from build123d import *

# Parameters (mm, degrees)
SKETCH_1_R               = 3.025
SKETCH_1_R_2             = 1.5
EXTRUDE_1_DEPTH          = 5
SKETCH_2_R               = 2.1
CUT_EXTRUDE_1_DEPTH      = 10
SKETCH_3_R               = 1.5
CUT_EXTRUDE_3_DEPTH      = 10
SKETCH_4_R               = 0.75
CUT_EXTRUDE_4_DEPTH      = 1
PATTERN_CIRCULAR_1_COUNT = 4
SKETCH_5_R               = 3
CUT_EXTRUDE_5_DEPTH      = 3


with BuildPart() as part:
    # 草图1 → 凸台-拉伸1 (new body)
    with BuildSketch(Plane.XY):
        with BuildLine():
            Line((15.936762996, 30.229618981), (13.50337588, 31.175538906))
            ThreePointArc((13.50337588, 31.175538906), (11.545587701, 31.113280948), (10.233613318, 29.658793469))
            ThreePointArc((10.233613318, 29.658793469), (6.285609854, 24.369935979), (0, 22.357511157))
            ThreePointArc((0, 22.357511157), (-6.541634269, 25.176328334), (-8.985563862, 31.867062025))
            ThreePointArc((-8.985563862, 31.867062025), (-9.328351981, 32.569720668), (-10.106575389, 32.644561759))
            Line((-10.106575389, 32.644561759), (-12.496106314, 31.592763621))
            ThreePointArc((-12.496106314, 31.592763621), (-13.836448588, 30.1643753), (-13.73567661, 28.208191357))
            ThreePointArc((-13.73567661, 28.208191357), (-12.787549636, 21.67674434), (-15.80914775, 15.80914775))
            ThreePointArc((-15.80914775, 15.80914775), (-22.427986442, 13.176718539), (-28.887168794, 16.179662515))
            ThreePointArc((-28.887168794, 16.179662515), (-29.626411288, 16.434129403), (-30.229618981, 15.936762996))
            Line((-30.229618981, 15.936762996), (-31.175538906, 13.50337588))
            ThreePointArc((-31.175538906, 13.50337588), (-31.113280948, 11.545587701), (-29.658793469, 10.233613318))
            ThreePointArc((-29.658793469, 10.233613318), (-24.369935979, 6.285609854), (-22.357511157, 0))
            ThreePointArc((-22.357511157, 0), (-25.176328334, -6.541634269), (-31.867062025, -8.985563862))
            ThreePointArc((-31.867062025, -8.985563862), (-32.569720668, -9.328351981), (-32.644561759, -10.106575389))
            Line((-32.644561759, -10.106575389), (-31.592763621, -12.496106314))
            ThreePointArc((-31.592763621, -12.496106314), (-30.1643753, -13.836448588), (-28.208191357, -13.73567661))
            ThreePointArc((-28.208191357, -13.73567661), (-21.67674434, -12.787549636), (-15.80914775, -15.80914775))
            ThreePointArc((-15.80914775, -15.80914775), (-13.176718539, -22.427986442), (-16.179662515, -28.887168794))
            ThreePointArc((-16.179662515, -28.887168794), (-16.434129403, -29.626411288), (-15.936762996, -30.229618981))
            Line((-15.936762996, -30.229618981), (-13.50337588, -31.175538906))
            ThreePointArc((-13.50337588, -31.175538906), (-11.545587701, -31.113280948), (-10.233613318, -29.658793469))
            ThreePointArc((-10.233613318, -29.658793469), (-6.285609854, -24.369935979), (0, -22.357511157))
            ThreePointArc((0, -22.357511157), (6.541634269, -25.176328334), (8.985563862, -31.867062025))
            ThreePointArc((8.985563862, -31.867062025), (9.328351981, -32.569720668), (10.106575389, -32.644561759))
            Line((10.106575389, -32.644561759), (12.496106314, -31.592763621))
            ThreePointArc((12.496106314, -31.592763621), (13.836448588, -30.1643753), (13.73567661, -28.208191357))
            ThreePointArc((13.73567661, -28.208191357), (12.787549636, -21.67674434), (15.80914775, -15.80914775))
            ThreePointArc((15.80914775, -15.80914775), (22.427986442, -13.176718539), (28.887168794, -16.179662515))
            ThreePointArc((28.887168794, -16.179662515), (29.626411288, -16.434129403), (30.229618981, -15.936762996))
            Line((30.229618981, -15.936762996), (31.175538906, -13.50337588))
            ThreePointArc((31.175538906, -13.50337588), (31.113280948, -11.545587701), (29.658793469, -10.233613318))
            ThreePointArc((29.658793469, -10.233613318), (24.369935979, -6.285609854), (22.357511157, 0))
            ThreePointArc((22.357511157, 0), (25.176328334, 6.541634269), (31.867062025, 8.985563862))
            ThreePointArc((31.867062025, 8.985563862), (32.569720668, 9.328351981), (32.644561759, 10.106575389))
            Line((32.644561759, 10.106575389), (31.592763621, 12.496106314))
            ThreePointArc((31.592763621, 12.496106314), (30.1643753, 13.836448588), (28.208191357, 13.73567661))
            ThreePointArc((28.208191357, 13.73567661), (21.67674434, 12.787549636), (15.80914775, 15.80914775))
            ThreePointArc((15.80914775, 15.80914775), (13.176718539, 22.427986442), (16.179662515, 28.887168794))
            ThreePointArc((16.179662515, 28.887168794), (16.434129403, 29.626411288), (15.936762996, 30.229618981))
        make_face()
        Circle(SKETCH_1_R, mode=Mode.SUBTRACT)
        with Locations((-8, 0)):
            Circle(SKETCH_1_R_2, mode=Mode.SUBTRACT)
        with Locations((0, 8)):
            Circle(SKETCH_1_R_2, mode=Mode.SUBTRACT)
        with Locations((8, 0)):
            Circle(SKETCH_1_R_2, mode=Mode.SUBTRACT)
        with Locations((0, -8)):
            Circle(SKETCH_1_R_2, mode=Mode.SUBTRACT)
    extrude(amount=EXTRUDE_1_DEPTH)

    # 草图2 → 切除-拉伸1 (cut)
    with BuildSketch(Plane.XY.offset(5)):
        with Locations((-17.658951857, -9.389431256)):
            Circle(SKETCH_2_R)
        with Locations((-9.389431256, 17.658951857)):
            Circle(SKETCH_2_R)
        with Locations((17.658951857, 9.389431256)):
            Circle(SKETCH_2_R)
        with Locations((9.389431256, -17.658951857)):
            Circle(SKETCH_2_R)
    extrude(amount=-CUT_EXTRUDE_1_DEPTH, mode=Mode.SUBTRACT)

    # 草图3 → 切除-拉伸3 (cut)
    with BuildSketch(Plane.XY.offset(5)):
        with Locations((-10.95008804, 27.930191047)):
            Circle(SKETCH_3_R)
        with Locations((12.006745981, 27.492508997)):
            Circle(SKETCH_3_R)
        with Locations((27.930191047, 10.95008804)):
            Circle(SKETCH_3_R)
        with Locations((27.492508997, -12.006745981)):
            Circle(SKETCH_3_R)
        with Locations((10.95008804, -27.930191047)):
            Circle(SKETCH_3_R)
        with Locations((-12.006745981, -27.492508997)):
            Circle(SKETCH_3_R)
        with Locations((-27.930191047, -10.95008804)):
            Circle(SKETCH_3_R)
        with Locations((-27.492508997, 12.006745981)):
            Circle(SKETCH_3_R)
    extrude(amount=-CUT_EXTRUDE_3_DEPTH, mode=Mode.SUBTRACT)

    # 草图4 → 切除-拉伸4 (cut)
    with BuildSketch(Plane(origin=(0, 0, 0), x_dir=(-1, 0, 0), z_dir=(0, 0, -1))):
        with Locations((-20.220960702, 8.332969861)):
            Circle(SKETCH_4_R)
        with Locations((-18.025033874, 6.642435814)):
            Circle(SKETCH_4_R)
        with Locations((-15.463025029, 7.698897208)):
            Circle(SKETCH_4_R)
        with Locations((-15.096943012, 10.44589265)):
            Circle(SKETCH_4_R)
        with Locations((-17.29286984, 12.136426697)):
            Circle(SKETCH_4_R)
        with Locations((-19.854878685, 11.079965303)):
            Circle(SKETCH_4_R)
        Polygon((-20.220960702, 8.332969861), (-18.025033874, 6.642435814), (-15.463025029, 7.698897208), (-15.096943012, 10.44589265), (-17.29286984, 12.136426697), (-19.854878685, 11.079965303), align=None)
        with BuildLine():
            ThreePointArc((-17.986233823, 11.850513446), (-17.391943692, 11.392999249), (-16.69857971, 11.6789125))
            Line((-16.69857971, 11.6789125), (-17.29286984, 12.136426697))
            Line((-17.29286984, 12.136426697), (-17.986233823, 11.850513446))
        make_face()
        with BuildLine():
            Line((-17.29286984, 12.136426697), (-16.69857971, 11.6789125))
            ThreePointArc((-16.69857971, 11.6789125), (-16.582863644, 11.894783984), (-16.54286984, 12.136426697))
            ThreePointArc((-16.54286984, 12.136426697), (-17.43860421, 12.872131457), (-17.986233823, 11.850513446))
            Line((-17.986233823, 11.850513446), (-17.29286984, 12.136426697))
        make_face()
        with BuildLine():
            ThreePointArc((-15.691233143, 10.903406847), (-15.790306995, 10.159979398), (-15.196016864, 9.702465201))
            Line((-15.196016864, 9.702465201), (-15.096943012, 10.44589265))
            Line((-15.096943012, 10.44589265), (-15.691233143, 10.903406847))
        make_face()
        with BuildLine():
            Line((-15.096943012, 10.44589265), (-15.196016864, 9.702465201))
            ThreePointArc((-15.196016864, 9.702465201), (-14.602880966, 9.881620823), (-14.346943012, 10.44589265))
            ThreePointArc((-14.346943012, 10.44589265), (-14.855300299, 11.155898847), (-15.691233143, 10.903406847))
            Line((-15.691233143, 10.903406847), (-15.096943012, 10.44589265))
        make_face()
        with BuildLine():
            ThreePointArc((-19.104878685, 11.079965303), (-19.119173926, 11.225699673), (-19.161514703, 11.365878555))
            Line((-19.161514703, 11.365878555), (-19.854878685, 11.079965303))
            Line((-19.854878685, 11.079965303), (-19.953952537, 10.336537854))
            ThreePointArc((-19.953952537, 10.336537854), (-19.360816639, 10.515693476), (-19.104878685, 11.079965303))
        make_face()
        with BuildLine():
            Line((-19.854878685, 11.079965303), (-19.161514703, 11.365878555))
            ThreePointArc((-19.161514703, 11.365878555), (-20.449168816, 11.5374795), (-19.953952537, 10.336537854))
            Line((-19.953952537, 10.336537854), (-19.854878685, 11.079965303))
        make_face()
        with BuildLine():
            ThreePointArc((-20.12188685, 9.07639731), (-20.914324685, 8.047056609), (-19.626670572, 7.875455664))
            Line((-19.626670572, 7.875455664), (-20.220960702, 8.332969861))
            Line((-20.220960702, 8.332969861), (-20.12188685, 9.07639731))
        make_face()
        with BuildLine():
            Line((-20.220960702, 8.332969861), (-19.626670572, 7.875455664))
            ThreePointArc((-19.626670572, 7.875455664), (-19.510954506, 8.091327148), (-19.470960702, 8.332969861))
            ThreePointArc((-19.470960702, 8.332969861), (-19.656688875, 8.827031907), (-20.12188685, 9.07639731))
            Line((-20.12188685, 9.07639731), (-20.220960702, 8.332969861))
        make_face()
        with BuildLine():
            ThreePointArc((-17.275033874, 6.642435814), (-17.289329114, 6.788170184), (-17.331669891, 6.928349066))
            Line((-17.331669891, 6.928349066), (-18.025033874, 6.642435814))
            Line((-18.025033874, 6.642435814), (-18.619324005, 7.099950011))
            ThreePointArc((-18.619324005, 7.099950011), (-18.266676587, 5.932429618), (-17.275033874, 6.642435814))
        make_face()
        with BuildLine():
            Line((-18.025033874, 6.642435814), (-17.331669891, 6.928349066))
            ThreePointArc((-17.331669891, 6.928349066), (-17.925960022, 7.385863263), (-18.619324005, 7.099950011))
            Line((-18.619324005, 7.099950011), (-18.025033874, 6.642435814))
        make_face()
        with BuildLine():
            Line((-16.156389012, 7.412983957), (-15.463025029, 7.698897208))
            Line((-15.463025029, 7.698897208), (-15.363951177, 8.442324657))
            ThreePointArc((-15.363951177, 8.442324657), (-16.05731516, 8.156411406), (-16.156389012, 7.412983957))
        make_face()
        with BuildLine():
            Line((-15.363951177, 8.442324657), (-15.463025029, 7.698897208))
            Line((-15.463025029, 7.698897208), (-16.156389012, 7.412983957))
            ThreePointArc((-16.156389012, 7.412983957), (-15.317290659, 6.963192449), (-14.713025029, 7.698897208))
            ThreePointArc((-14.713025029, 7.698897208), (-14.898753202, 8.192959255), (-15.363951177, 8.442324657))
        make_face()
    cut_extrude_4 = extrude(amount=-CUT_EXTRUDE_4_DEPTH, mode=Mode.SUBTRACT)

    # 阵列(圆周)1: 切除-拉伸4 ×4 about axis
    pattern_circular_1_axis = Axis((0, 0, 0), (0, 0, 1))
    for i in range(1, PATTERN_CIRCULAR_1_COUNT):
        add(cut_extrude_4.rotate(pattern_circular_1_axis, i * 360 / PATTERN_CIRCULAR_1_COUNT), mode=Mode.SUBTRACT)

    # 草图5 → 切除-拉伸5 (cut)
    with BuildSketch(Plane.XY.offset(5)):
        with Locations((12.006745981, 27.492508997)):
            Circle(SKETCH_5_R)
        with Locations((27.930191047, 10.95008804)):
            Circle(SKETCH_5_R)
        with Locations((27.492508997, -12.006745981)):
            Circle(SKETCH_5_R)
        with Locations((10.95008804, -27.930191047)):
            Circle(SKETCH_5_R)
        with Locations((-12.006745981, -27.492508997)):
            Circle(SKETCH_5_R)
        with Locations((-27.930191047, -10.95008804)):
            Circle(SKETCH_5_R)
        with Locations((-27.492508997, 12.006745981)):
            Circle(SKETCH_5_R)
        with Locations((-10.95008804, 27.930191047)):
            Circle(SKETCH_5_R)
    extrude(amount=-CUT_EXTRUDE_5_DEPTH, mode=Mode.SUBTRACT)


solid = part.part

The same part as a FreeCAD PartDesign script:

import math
import FreeCAD as App
import Part
import Sketcher

V = App.Vector

doc = App.newDocument("Part")
params = doc.addObject("Spreadsheet::Sheet", "Params")
for row, (alias, value) in enumerate([
    ("sketch1_diameter", "3 mm"),
    ("sketch1_diameter2", "3 mm"),
    ("sketch1_diameter3", "3 mm"),
    ("sketch1_diameter4", "3 mm"),
    ("sketch1_radius", "9 mm"),
    ("pad1_length", "5 mm"),
    ("sketch2_diameter", "4.2 mm"),
    ("pocket1_length", "10 mm"),
    ("sketch3_diameter", "3 mm"),
    ("pocket2_length", "10 mm"),
    ("sketch4_radius", "0.75 mm"),
    ("pocket3_length", "1 mm"),
    ("sketch5_diameter", "6 mm"),
    ("pocket4_length", "3 mm"),
], start=1):
    params.set(f"A{row}", alias)
    params.set(f"B{row}", "=" + value)
    params.setAlias(f"B{row}", alias)

body = doc.addObject("PartDesign::Body", "Body")

# Sketch on XY plane
sketch1 = body.newObject("Sketcher::SketchObject", "Sketch")
sketch1.AttachmentSupport = (doc.getObject("XY_Plane"), [""])
sketch1.MapMode = "FlatFace"
sketch1.addGeometry([
    Part.LineSegment(V(15.936763, 30.229619, 0), V(13.503376, 31.175539, 0)),  # 0
    Part.ArcOfCircle(Part.Circle(V(12.597591, 28.845399, 0), V(0, 0, 1), 2.5), math.radians(68.757621), math.radians(161.012741)),  # 1
    Part.ArcOfCircle(Part.Circle(V(0, 33.179964, 0), V(0, 0, 1), 10.822453), math.radians(-90), math.radians(-18.987259)),  # 2
    Part.ArcOfCircle(Part.Circle(V(0, 31.357511, 0), V(0, 0, 1), 9), math.radians(176.754363), math.radians(270)),  # 3
    Part.ArcOfCircle(Part.Circle(V(-9.784281, 31.912355, 0), V(0, 0, 1), 0.8), math.radians(-3.245637), math.radians(113.757621)),  # 4
    Part.LineSegment(V(-10.106575, 32.644562, 0), V(-12.496106, 31.592764, 0)),  # 5
    Part.ArcOfCircle(Part.Circle(V(-11.488935, 29.304619, 0), V(0, 0, 1), 2.5), math.radians(113.75762), math.radians(206.012741)),  # 6
    Part.ArcOfCircle(Part.Circle(V(-23.461777, 23.461777, 0), V(0, 0, 1), 10.822453), math.radians(-45), math.radians(26.012741)),  # 7
    Part.ArcOfCircle(Part.Circle(V(-22.173109, 22.173109, 0), V(0, 0, 1), 9), math.radians(-138.245637), math.radians(-45)),  # 8
    Part.ArcOfCircle(Part.Circle(V(-29.483974, 15.646912, 0), V(0, 0, 1), 0.8), math.radians(41.754363), math.radians(158.757621)),  # 9
    Part.LineSegment(V(-30.229619, 15.936763, 0), V(-31.175539, 13.503376, 0)),  # 10
    Part.ArcOfCircle(Part.Circle(V(-28.845399, 12.597591, 0), V(0, 0, 1), 2.5), math.radians(158.757621), math.radians(251.012741)),  # 11
    Part.ArcOfCircle(Part.Circle(V(-33.179964, 0, 0), V(0, 0, 1), 10.822453), math.radians(0), math.radians(71.012741)),  # 12
    Part.ArcOfCircle(Part.Circle(V(-31.357511, 0, 0), V(0, 0, 1), 9), math.radians(-93.245637), math.radians(0)),  # 13
    Part.ArcOfCircle(Part.Circle(V(-31.912355, -9.784281, 0), V(0, 0, 1), 0.8), math.radians(86.754363), math.radians(203.757621)),  # 14
    Part.LineSegment(V(-32.644562, -10.106575, 0), V(-31.592764, -12.496106, 0)),  # 15
    Part.ArcOfCircle(Part.Circle(V(-29.304619, -11.488935, 0), V(0, 0, 1), 2.5), math.radians(-156.24238), math.radians(-63.987259)),  # 16
    Part.ArcOfCircle(Part.Circle(V(-23.461777, -23.461777, 0), V(0, 0, 1), 10.822453), math.radians(45), math.radians(116.012741)),  # 17
    Part.ArcOfCircle(Part.Circle(V(-22.173109, -22.173109, 0), V(0, 0, 1), 9), math.radians(-48.245637), math.radians(45)),  # 18
    Part.ArcOfCircle(Part.Circle(V(-15.646912, -29.483974, 0), V(0, 0, 1), 0.8), math.radians(131.754363), math.radians(248.757621)),  # 19
    Part.LineSegment(V(-15.936763, -30.229619, 0), V(-13.503376, -31.175539, 0)),  # 20
    Part.ArcOfCircle(Part.Circle(V(-12.597591, -28.845399, 0), V(0, 0, 1), 2.5), math.radians(-111.242379), math.radians(-18.987259)),  # 21
    Part.ArcOfCircle(Part.Circle(V(0, -33.179964, 0), V(0, 0, 1), 10.822453), math.radians(90), math.radians(161.012741)),  # 22
    Part.ArcOfCircle(Part.Circle(V(0, -31.357511, 0), V(0, 0, 1), 9), math.radians(-3.245637), math.radians(90)),  # 23
    Part.ArcOfCircle(Part.Circle(V(9.784281, -31.912355, 0), V(0, 0, 1), 0.8), math.radians(176.754363), math.radians(293.757621)),  # 24
    Part.LineSegment(V(10.106575, -32.644562, 0), V(12.496106, -31.592764, 0)),  # 25
    Part.ArcOfCircle(Part.Circle(V(11.488935, -29.304619, 0), V(0, 0, 1), 2.5), math.radians(-66.24238), math.radians(26.012741)),  # 26
    Part.ArcOfCircle(Part.Circle(V(23.461777, -23.461777, 0), V(0, 0, 1), 10.822453), math.radians(135), math.radians(206.012741)),  # 27
    Part.ArcOfCircle(Part.Circle(V(22.173109, -22.173109, 0), V(0, 0, 1), 9), math.radians(41.754363), math.radians(135)),  # 28
    Part.ArcOfCircle(Part.Circle(V(29.483974, -15.646912, 0), V(0, 0, 1), 0.8), math.radians(-138.245637), math.radians(-21.242379)),  # 29
    Part.LineSegment(V(30.229619, -15.936763, 0), V(31.175539, -13.503376, 0)),  # 30
    Part.ArcOfCircle(Part.Circle(V(28.845399, -12.597591, 0), V(0, 0, 1), 2.5), math.radians(-21.242379), math.radians(71.012741)),  # 31
    Part.ArcOfCircle(Part.Circle(V(33.179964, 0, 0), V(0, 0, 1), 10.822453), math.radians(180), math.radians(251.012741)),  # 32
    Part.ArcOfCircle(Part.Circle(V(31.357511, 0, 0), V(0, 0, 1), 9), math.radians(86.754363), math.radians(180)),  # 33
    Part.ArcOfCircle(Part.Circle(V(31.912355, 9.784281, 0), V(0, 0, 1), 0.8), math.radians(-93.245637), math.radians(23.757621)),  # 34
    Part.LineSegment(V(32.644562, 10.106575, 0), V(31.592764, 12.496106, 0)),  # 35
    Part.ArcOfCircle(Part.Circle(V(29.304619, 11.488935, 0), V(0, 0, 1), 2.5), math.radians(23.75762), math.radians(116.012741)),  # 36
    Part.ArcOfCircle(Part.Circle(V(23.461777, 23.461777, 0), V(0, 0, 1), 10.822453), math.radians(-135), math.radians(-63.987259)),  # 37
    Part.ArcOfCircle(Part.Circle(V(22.173109, 22.173109, 0), V(0, 0, 1), 9), math.radians(131.754363), math.radians(225)),  # 38
    Part.ArcOfCircle(Part.Circle(V(15.646912, 29.483974, 0), V(0, 0, 1), 0.8), math.radians(-48.245637), math.radians(68.757621)),  # 39
    Part.Circle(V(0, -8, 0), V(0, 0, 1), 1.5),  # 40
    Part.Circle(V(-8, 0, 0), V(0, 0, 1), 1.5),  # 41
    Part.Circle(V(0, 0, 0), V(0, 0, 1), 3.025),  # 42
    Part.Circle(V(8, 0, 0), V(0, 0, 1), 1.5),  # 43
    Part.Circle(V(0, 8, 0), V(0, 0, 1), 1.5),  # 44
], False)
sketch1.addConstraint([
    Sketcher.Constraint("Coincident", 0, 2, 1, 1),
    Sketcher.Constraint("Coincident", 1, 2, 2, 2),
    Sketcher.Constraint("Coincident", 2, 1, 3, 2),
    Sketcher.Constraint("Coincident", 3, 1, 4, 1),
    Sketcher.Constraint("Coincident", 4, 2, 5, 1),
    Sketcher.Constraint("Coincident", 5, 2, 6, 1),
    Sketcher.Constraint("Coincident", 6, 2, 7, 2),
    Sketcher.Constraint("Coincident", 7, 1, 8, 2),
    Sketcher.Constraint("Coincident", 8, 1, 9, 1),
    Sketcher.Constraint("Coincident", 9, 2, 10, 1),
    Sketcher.Constraint("Coincident", 10, 2, 11, 1),
    Sketcher.Constraint("Coincident", 11, 2, 12, 2),
    Sketcher.Constraint("Coincident", 12, 1, 13, 2),
    Sketcher.Constraint("Coincident", 13, 1, 14, 1),
    Sketcher.Constraint("Coincident", 14, 2, 15, 1),
    Sketcher.Constraint("Coincident", 15, 2, 16, 1),
    Sketcher.Constraint("Coincident", 16, 2, 17, 2),
    Sketcher.Constraint("Coincident", 17, 1, 18, 2),
    Sketcher.Constraint("Coincident", 18, 1, 19, 1),
    Sketcher.Constraint("Coincident", 19, 2, 20, 1),
    Sketcher.Constraint("Coincident", 20, 2, 21, 1),
    Sketcher.Constraint("Coincident", 21, 2, 22, 2),
    Sketcher.Constraint("Coincident", 22, 1, 23, 2),
    Sketcher.Constraint("Coincident", 23, 1, 24, 1),
    Sketcher.Constraint("Coincident", 24, 2, 25, 1),
    Sketcher.Constraint("Coincident", 25, 2, 26, 1),
    Sketcher.Constraint("Coincident", 26, 2, 27, 2),
    Sketcher.Constraint("Coincident", 27, 1, 28, 2),
    Sketcher.Constraint("Coincident", 28, 1, 29, 1),
    Sketcher.Constraint("Coincident", 29, 2, 30, 1),
    Sketcher.Constraint("Coincident", 30, 2, 31, 1),
    Sketcher.Constraint("Coincident", 31, 2, 32, 2),
    Sketcher.Constraint("Coincident", 32, 1, 33, 2),
    Sketcher.Constraint("Coincident", 33, 1, 34, 1),
    Sketcher.Constraint("Coincident", 34, 2, 35, 1),
    Sketcher.Constraint("Coincident", 35, 2, 36, 1),
    Sketcher.Constraint("Coincident", 36, 2, 37, 2),
    Sketcher.Constraint("Coincident", 37, 1, 38, 2),
    Sketcher.Constraint("Coincident", 38, 1, 39, 1),
    Sketcher.Constraint("Coincident", 39, 2, 0, 1),
    Sketcher.Constraint("Coincident", 42, 3, -1, 1),
    Sketcher.Constraint("PointOnObject", 2, 3, -2),
    Sketcher.Constraint("PointOnObject", 3, 3, -2),
    Sketcher.Constraint("PointOnObject", 12, 3, -1),
    Sketcher.Constraint("PointOnObject", 13, 3, -1),
    Sketcher.Constraint("PointOnObject", 22, 3, -2),
    Sketcher.Constraint("PointOnObject", 23, 3, -2),
    Sketcher.Constraint("PointOnObject", 32, 3, -1),
    Sketcher.Constraint("PointOnObject", 33, 3, -1),
    Sketcher.Constraint("PointOnObject", 40, 3, -2),
    Sketcher.Constraint("PointOnObject", 41, 3, -1),
    Sketcher.Constraint("PointOnObject", 43, 3, -1),
    Sketcher.Constraint("PointOnObject", 44, 3, -2),
    Sketcher.Constraint("PointOnObject", 2, 1, -2),
    Sketcher.Constraint("PointOnObject", 12, 1, -1),
    Sketcher.Constraint("PointOnObject", 22, 1, -2),
    Sketcher.Constraint("PointOnObject", 32, 1, -1),
    Sketcher.Constraint("Diameter", 40, 3.0),
    Sketcher.Constraint("Diameter", 41, 3.0),
    Sketcher.Constraint("Diameter", 43, 3.0),
    Sketcher.Constraint("Diameter", 44, 3.0),
    Sketcher.Constraint("Radius", 3, 9.0),
    Sketcher.Constraint("Radius", 8, 9.0),
    Sketcher.Constraint("Radius", 13, 9.0),
    Sketcher.Constraint("Radius", 18, 9.0),
    Sketcher.Constraint("Radius", 23, 9.0),
    Sketcher.Constraint("Radius", 28, 9.0),
    Sketcher.Constraint("Radius", 33, 9.0),
    Sketcher.Constraint("Radius", 38, 9.0),
    Sketcher.Constraint("Radius", 1, 2.5),
    Sketcher.Constraint("Radius", 4, 0.8),
    Sketcher.Constraint("Radius", 6, 2.5),
    Sketcher.Constraint("Radius", 9, 0.8),
    Sketcher.Constraint("Radius", 11, 2.5),
    Sketcher.Constraint("Radius", 14, 0.8),
    Sketcher.Constraint("Radius", 16, 2.5),
    Sketcher.Constraint("Radius", 19, 0.8),
    Sketcher.Constraint("Radius", 21, 2.5),
    Sketcher.Constraint("Radius", 24, 0.8),
    Sketcher.Constraint("Radius", 26, 2.5),
    Sketcher.Constraint("Radius", 29, 0.8),
    Sketcher.Constraint("Radius", 31, 2.5),
    Sketcher.Constraint("Radius", 34, 0.8),
    Sketcher.Constraint("Radius", 36, 2.5),
    Sketcher.Constraint("Radius", 39, 0.8),
    Sketcher.Constraint("Diameter", 42, 6.05),
    Sketcher.Constraint("DistanceY", 40, 3, -1, 1, 8.0),
    Sketcher.Constraint("DistanceX", 41, 3, -1, 1, 8.0),
    Sketcher.Constraint("DistanceX", -1, 1, 43, 3, 8.0),
    Sketcher.Constraint("DistanceY", -1, 1, 44, 3, 8.0),
    Sketcher.Constraint("Radius", 2, 10.822453),
    Sketcher.Constraint("Radius", 7, 10.822453),
    Sketcher.Constraint("Radius", 12, 10.822453),
    Sketcher.Constraint("Radius", 17, 10.822453),
    Sketcher.Constraint("Radius", 22, 10.822453),
    Sketcher.Constraint("Radius", 27, 10.822453),
    Sketcher.Constraint("Radius", 32, 10.822453),
    Sketcher.Constraint("Radius", 37, 10.822453),
    Sketcher.Constraint("DistanceY", -1, 1, 1, 3, 28.845399),
    Sketcher.Constraint("DistanceX", 11, 3, -1, 1, 28.845399),
    Sketcher.Constraint("DistanceY", 21, 3, -1, 1, 28.845399),
    Sketcher.Constraint("DistanceX", -1, 1, 31, 3, 28.845399),
    Sketcher.Constraint("DistanceX", -1, 1, 1, 3, 12.597591),
    Sketcher.Constraint("DistanceX", 4, 3, -1, 1, 9.784281),
    Sketcher.Constraint("DistanceY", -1, 1, 6, 3, 29.304619),
    Sketcher.Constraint("DistanceX", 8, 3, -1, 1, 22.173109),
    Sketcher.Constraint("DistanceY", -1, 1, 8, 3, 22.173109),
    Sketcher.Constraint("DistanceY", -1, 1, 9, 3, 15.646912),
    Sketcher.Constraint("DistanceY", -1, 1, 11, 3, 12.597591),
    Sketcher.Constraint("DistanceY", 14, 3, -1, 1, 9.784281),
    Sketcher.Constraint("DistanceX", 16, 3, -1, 1, 29.304619),
    Sketcher.Constraint("DistanceX", 18, 3, -1, 1, 22.173109),
    Sketcher.Constraint("DistanceY", 18, 3, -1, 1, 22.173109),
    Sketcher.Constraint("DistanceX", 19, 3, -1, 1, 15.646912),
    Sketcher.Constraint("DistanceX", 21, 3, -1, 1, 12.597591),
    Sketcher.Constraint("DistanceX", -1, 1, 24, 3, 9.784281),
    Sketcher.Constraint("DistanceY", 26, 3, -1, 1, 29.304619),
    Sketcher.Constraint("DistanceX", -1, 1, 28, 3, 22.173109),
    Sketcher.Constraint("DistanceY", 28, 3, -1, 1, 22.173109),
    Sketcher.Constraint("DistanceY", 29, 3, -1, 1, 15.646912),
    Sketcher.Constraint("DistanceY", 31, 3, -1, 1, 12.597591),
    Sketcher.Constraint("DistanceY", -1, 1, 34, 3, 9.784281),
    Sketcher.Constraint("DistanceX", -1, 1, 36, 3, 29.304619),
    Sketcher.Constraint("DistanceX", -1, 1, 38, 3, 22.173109),
    Sketcher.Constraint("DistanceY", -1, 1, 38, 3, 22.173109),
    Sketcher.Constraint("DistanceX", -1, 1, 39, 3, 15.646912),
    Sketcher.Constraint("DistanceY", -1, 1, 0, 2, 31.175539),
    Sketcher.Constraint("DistanceY", -1, 1, 4, 2, 32.644562),
    Sketcher.Constraint("DistanceY", -1, 1, 6, 2, 28.208191),
    Sketcher.Constraint("DistanceX", 8, 1, -1, 1, 28.887169),
    Sketcher.Constraint("DistanceX", 9, 2, -1, 1, 30.229619),
    Sketcher.Constraint("DistanceX", 10, 2, -1, 1, 31.175539),
    Sketcher.Constraint("DistanceX", 14, 2, -1, 1, 32.644562),
    Sketcher.Constraint("DistanceX", 16, 2, -1, 1, 28.208191),
    Sketcher.Constraint("DistanceY", 18, 1, -1, 1, 28.887169),
    Sketcher.Constraint("DistanceY", 19, 2, -1, 1, 30.229619),
    Sketcher.Constraint("DistanceY", 20, 2, -1, 1, 31.175539),
    Sketcher.Constraint("DistanceY", 24, 2, -1, 1, 32.644562),
    Sketcher.Constraint("DistanceY", 26, 2, -1, 1, 28.208191),
    Sketcher.Constraint("DistanceX", -1, 1, 28, 1, 28.887169),
    Sketcher.Constraint("DistanceX", -1, 1, 29, 2, 30.229619),
    Sketcher.Constraint("DistanceX", -1, 1, 30, 2, 31.175539),
    Sketcher.Constraint("DistanceX", -1, 1, 34, 2, 32.644562),
    Sketcher.Constraint("DistanceX", -1, 1, 36, 2, 28.208191),
    Sketcher.Constraint("DistanceY", -1, 1, 38, 1, 28.887169),
    Sketcher.Constraint("DistanceY", -1, 1, 39, 2, 30.229619),
    Sketcher.Constraint("Distance", 5, 2.610773),
    Sketcher.Constraint("Distance", 15, 2.610773),
    Sketcher.Constraint("Distance", 25, 2.610773),
    Sketcher.Constraint("Distance", 35, 2.610773),
    Sketcher.Constraint("DistanceX", 6, 3, -1, 1, 11.488935),
    Sketcher.Constraint("DistanceY", 16, 3, -1, 1, 11.488935),
    Sketcher.Constraint("DistanceX", -1, 1, 26, 3, 11.488935),
    Sketcher.Constraint("DistanceY", -1, 1, 36, 3, 11.488935),
    Sketcher.Constraint("DistanceX", -1, 1, 1, 2, 10.233613),
    Sketcher.Constraint("DistanceX", 3, 1, -1, 1, 8.985564),
    Sketcher.Constraint("DistanceX", 7, 1, -1, 1, 15.809148),
    Sketcher.Constraint("DistanceX", 11, 2, -1, 1, 29.658793),
    Sketcher.Constraint("DistanceX", 13, 1, -1, 1, 31.867062),
    Sketcher.Constraint("DistanceX", 17, 1, -1, 1, 15.809148),
    Sketcher.Constraint("DistanceX", 21, 2, -1, 1, 10.233613),
    Sketcher.Constraint("DistanceX", -1, 1, 23, 1, 8.985564),
    Sketcher.Constraint("DistanceX", -1, 1, 27, 1, 15.809148),
    Sketcher.Constraint("DistanceX", -1, 1, 31, 2, 29.658793),
    Sketcher.Constraint("DistanceX", -1, 1, 33, 1, 31.867062),
    Sketcher.Constraint("DistanceX", -1, 1, 37, 1, 15.809148),
])
sketch1.setExpression("Constraints[57]", "Params.sketch1_diameter")
sketch1.setExpression("Constraints[58]", "Params.sketch1_diameter2")
sketch1.setExpression("Constraints[59]", "Params.sketch1_diameter3")
sketch1.setExpression("Constraints[60]", "Params.sketch1_diameter4")
sketch1.setExpression("Constraints[61]", "Params.sketch1_radius")
pad1 = body.newObject("PartDesign::Pad", "Pad")
pad1.Profile = sketch1
pad1.setExpression("Length", "Params.pad1_length")

# Sketch on XY plane
sketch2 = body.newObject("Sketcher::SketchObject", "Sketch001")
sketch2.AttachmentSupport = (doc.getObject("XY_Plane"), [""])
sketch2.MapMode = "FlatFace"
sketch2.AttachmentOffset = App.Placement(V(0, 0, 5), App.Rotation())
sketch2.addGeometry([
    Part.Circle(V(-17.7, -9.4, 0), V(0, 0, 1), 2.1),
    Part.Circle(V(-9.4, 17.7, 0), V(0, 0, 1), 2.1),
    Part.Circle(V(17.7, 9.4, 0), V(0, 0, 1), 2.1),
    Part.Circle(V(9.4, -17.7, 0), V(0, 0, 1), 2.1),
], False)
sketch2.addConstraint([
    Sketcher.Constraint("Equal", 0, 1),
    Sketcher.Constraint("Equal", 1, 2),
    Sketcher.Constraint("Equal", 2, 3),
    Sketcher.Constraint("Symmetric", 0, 3, 2, 3, -1, 1),
    Sketcher.Constraint("Symmetric", 1, 3, 3, 3, -1, 1),
    Sketcher.Constraint("Diameter", 0, 4.2),
    Sketcher.Constraint("DistanceX", 0, 3, -1, 1, 17.658952),
    Sketcher.Constraint("DistanceY", 0, 3, -1, 1, 9.389431),
    Sketcher.Constraint("DistanceX", 1, 3, -1, 1, 9.389431),
    Sketcher.Constraint("DistanceY", -1, 1, 1, 3, 17.658952),
])
sketch2.setExpression("Constraints[5]", "Params.sketch2_diameter")
pocket1 = body.newObject("PartDesign::Pocket", "Pocket")
pocket1.Profile = sketch2
pocket1.setExpression("Length", "Params.pocket1_length")

# Sketch on XY plane
sketch3 = body.newObject("Sketcher::SketchObject", "Sketch002")
sketch3.AttachmentSupport = (doc.getObject("XY_Plane"), [""])
sketch3.MapMode = "FlatFace"
sketch3.AttachmentOffset = App.Placement(V(0, 0, 5), App.Rotation())
sketch3.addGeometry([
    Part.Circle(V(-11, 27.9, 0), V(0, 0, 1), 1.5),  # 0
    Part.Circle(V(12, 27.5, 0), V(0, 0, 1), 1.5),  # 1
    Part.Circle(V(27.9, 11, 0), V(0, 0, 1), 1.5),  # 2
    Part.Circle(V(27.5, -12, 0), V(0, 0, 1), 1.5),  # 3
    Part.Circle(V(11, -27.9, 0), V(0, 0, 1), 1.5),  # 4
    Part.Circle(V(-12, -27.5, 0), V(0, 0, 1), 1.5),  # 5
    Part.Circle(V(-27.9, -11, 0), V(0, 0, 1), 1.5),  # 6
    Part.Circle(V(-27.5, 12, 0), V(0, 0, 1), 1.5),  # 7
], False)
sketch3.addConstraint([
    Sketcher.Constraint("Equal", 0, 1),
    Sketcher.Constraint("Equal", 1, 2),
    Sketcher.Constraint("Equal", 2, 3),
    Sketcher.Constraint("Equal", 3, 4),
    Sketcher.Constraint("Equal", 4, 5),
    Sketcher.Constraint("Equal", 5, 6),
    Sketcher.Constraint("Equal", 6, 7),
    Sketcher.Constraint("Symmetric", 0, 3, 4, 3, -1, 1),
    Sketcher.Constraint("Symmetric", 1, 3, 5, 3, -1, 1),
    Sketcher.Constraint("Symmetric", 2, 3, 6, 3, -1, 1),
    Sketcher.Constraint("Symmetric", 3, 3, 7, 3, -1, 1),
    Sketcher.Constraint("Diameter", 0, 3.0),
    Sketcher.Constraint("DistanceY", 4, 3, 1, 3, 55.4227),
    Sketcher.Constraint("DistanceX", 6, 3, 3, 3, 55.4227),
    Sketcher.Constraint("DistanceX", 0, 3, -1, 1, 10.950088),
    Sketcher.Constraint("DistanceY", -1, 1, 0, 3, 27.930191),
    Sketcher.Constraint("DistanceX", -1, 1, 2, 3, 27.930191),
    Sketcher.Constraint("DistanceY", -1, 1, 2, 3, 10.950088),
    Sketcher.Constraint("DistanceX", 5, 3, 1, 3, 24.013492),
    Sketcher.Constraint("DistanceY", 3, 3, -1, 1, 12.006746),
])
sketch3.setExpression("Constraints[11]", "Params.sketch3_diameter")
pocket2 = body.newObject("PartDesign::Pocket", "Pocket001")
pocket2.Profile = sketch3
pocket2.setExpression("Length", "Params.pocket2_length")

# Sketch on XY plane
sketch4 = body.newObject("Sketcher::SketchObject", "Sketch003")
sketch4.AttachmentSupport = (doc.getObject("XY_Plane"), [""])
sketch4.MapMode = "FlatFace"
sketch4.addGeometry([
    Part.LineSegment(V(17.3, 6.9, 0), V(16.2, 7.4, 0)),  # 0
    Part.ArcOfCircle(Part.Circle(V(15.5, 7.7, 0), V(0, 0, 1), 0.8), math.radians(98), math.radians(338)),  # 1
    Part.LineSegment(V(15.4, 8.4, 0), V(15.2, 9.7, 0)),  # 2
    Part.ArcOfCircle(Part.Circle(V(15.1, 10.4, 0), V(0, 0, 1), 0.8), math.radians(38), math.radians(278)),  # 3
    Part.LineSegment(V(15.7, 10.9, 0), V(16.7, 11.7, 0)),  # 4
    Part.ArcOfCircle(Part.Circle(V(17.3, 12.1, 0), V(0, 0, 1), 0.8), math.radians(-22), math.radians(218)),  # 5
    Part.LineSegment(V(18, 11.9, 0), V(19.2, 11.4, 0)),  # 6
    Part.ArcOfCircle(Part.Circle(V(19.9, 11.1, 0), V(0, 0, 1), 0.8), math.radians(-82), math.radians(158)),  # 7
    Part.LineSegment(V(20, 10.3, 0), V(20.1, 9.1, 0)),  # 8
    Part.ArcOfCircle(Part.Circle(V(20.2, 8.3, 0), V(0, 0, 1), 0.8), math.radians(-142), math.radians(98)),  # 9
    Part.LineSegment(V(19.6, 7.9, 0), V(18.6, 7.1, 0)),  # 10
    Part.ArcOfCircle(Part.Circle(V(18, 6.6, 0), V(0, 0, 1), 0.8), math.radians(158), math.radians(398)),  # 11
], False)
sketch4.addConstraint([
    Sketcher.Constraint("Coincident", 0, 2, 1, 2),
    Sketcher.Constraint("Coincident", 1, 1, 2, 1),
    Sketcher.Constraint("Coincident", 2, 2, 3, 2),
    Sketcher.Constraint("Coincident", 3, 1, 4, 1),
    Sketcher.Constraint("Coincident", 4, 2, 5, 2),
    Sketcher.Constraint("Coincident", 5, 1, 6, 1),
    Sketcher.Constraint("Coincident", 6, 2, 7, 2),
    Sketcher.Constraint("Coincident", 7, 1, 8, 1),
    Sketcher.Constraint("Coincident", 8, 2, 9, 2),
    Sketcher.Constraint("Coincident", 9, 1, 10, 1),
    Sketcher.Constraint("Coincident", 10, 2, 11, 2),
    Sketcher.Constraint("Coincident", 11, 1, 0, 1),
    Sketcher.Constraint("Equal", 1, 3),
    Sketcher.Constraint("Equal", 3, 5),
    Sketcher.Constraint("Equal", 5, 7),
    Sketcher.Constraint("Equal", 7, 9),
    Sketcher.Constraint("Equal", 9, 11),
    Sketcher.Constraint("Parallel", 0, 6),
    Sketcher.Constraint("Parallel", 2, 8),
    Sketcher.Constraint("Parallel", 4, 10),
    Sketcher.Constraint("Equal", 0, 2),
    Sketcher.Constraint("Equal", 2, 4),
    Sketcher.Constraint("Equal", 4, 6),
    Sketcher.Constraint("Equal", 6, 8),
    Sketcher.Constraint("Equal", 8, 10),
    Sketcher.Constraint("Radius", 1, 0.75),
    Sketcher.Constraint("DistanceX", 3, 1, 5, 1, 2.295001),
    Sketcher.Constraint("DistanceX", 11, 1, 9, 1, 2.295001),
    Sketcher.Constraint("DistanceX", 4, 2, 7, 3, 3.156299),
    Sketcher.Constraint("DistanceY", 4, 2, 5, 1, 0.171601),
    Sketcher.Constraint("DistanceY", 11, 1, 10, 2, 0.171601),
    Sketcher.Constraint("Distance", 0, 1.271281),
    Sketcher.Constraint("DistanceX", -1, 1, 5, 3, 17.29287),
    Sketcher.Constraint("DistanceX", -1, 1, 7, 3, 19.854879),
    Sketcher.Constraint("DistanceX", -1, 1, 9, 3, 20.220961),
    Sketcher.Constraint("DistanceY", -1, 1, 9, 3, 8.33297),
    Sketcher.Constraint("DistanceX", -1, 1, 0, 2, 16.156389),
    Sketcher.Constraint("DistanceX", -1, 1, 1, 1, 15.363951),
    Sketcher.Constraint("DistanceY", -1, 1, 6, 2, 11.365879),
    Sketcher.Constraint("DistanceY", 1, 3, 5, 3, 4.437529),
    Sketcher.Constraint("DistanceY", 1, 1, 2, 2, 1.260141),
    Sketcher.Constraint("DistanceY", 7, 1, 6, 2, 1.029341),
])
sketch4.setExpression("Constraints[25]", "Params.sketch4_radius")
pocket3 = body.newObject("PartDesign::Pocket", "Pocket002")
pocket3.Profile = sketch4
pocket3.setExpression("Length", "Params.pocket3_length")
pocket3.Reversed = True
doc.recompute()

polarpattern = body.newObject("PartDesign::PolarPattern", "PolarPattern")
polarpattern.Originals = [pocket3]
polarpattern.Axis = (doc.getObject("Z_Axis"), [""])
polarpattern.Angle = 360
polarpattern.Occurrences = 4
body.Tip = polarpattern

# Sketch on XY plane
sketch5 = body.newObject("Sketcher::SketchObject", "Sketch004")
sketch5.AttachmentSupport = (doc.getObject("XY_Plane"), [""])
sketch5.MapMode = "FlatFace"
sketch5.AttachmentOffset = App.Placement(V(0, 0, 5), App.Rotation())
sketch5.addGeometry([
    Part.Circle(V(12, 27.5, 0), V(0, 0, 1), 3),  # 0
    Part.Circle(V(27.9, 11, 0), V(0, 0, 1), 3),  # 1
    Part.Circle(V(27.5, -12, 0), V(0, 0, 1), 3),  # 2
    Part.Circle(V(11, -27.9, 0), V(0, 0, 1), 3),  # 3
    Part.Circle(V(-12, -27.5, 0), V(0, 0, 1), 3),  # 4
    Part.Circle(V(-27.9, -11, 0), V(0, 0, 1), 3),  # 5
    Part.Circle(V(-27.5, 12, 0), V(0, 0, 1), 3),  # 6
    Part.Circle(V(-11, 27.9, 0), V(0, 0, 1), 3),  # 7
], False)
sketch5.addConstraint([
    Sketcher.Constraint("Equal", 0, 1),
    Sketcher.Constraint("Equal", 1, 2),
    Sketcher.Constraint("Equal", 2, 3),
    Sketcher.Constraint("Equal", 3, 4),
    Sketcher.Constraint("Equal", 4, 5),
    Sketcher.Constraint("Equal", 5, 6),
    Sketcher.Constraint("Equal", 6, 7),
    Sketcher.Constraint("Symmetric", 0, 3, 4, 3, -1, 1),
    Sketcher.Constraint("Symmetric", 1, 3, 5, 3, -1, 1),
    Sketcher.Constraint("Symmetric", 2, 3, 6, 3, -1, 1),
    Sketcher.Constraint("Symmetric", 3, 3, 7, 3, -1, 1),
    Sketcher.Constraint("Diameter", 0, 6.0),
    Sketcher.Constraint("DistanceY", 3, 3, 0, 3, 55.4227),
    Sketcher.Constraint("DistanceX", 5, 3, 2, 3, 55.4227),
    Sketcher.Constraint("DistanceY", -1, 1, 0, 3, 27.492509),
    Sketcher.Constraint("DistanceX", -1, 1, 1, 3, 27.930191),
    Sketcher.Constraint("DistanceY", -1, 1, 1, 3, 10.950088),
    Sketcher.Constraint("DistanceX", -1, 1, 3, 3, 10.950088),
    Sketcher.Constraint("DistanceX", 4, 3, 0, 3, 24.013492),
    Sketcher.Constraint("DistanceY", 2, 3, -1, 1, 12.006746),
])
sketch5.setExpression("Constraints[11]", "Params.sketch5_diameter")
pocket4 = body.newObject("PartDesign::Pocket", "Pocket003")
pocket4.Profile = sketch5
pocket4.setExpression("Length", "Params.pocket4_length")

doc.recompute()
